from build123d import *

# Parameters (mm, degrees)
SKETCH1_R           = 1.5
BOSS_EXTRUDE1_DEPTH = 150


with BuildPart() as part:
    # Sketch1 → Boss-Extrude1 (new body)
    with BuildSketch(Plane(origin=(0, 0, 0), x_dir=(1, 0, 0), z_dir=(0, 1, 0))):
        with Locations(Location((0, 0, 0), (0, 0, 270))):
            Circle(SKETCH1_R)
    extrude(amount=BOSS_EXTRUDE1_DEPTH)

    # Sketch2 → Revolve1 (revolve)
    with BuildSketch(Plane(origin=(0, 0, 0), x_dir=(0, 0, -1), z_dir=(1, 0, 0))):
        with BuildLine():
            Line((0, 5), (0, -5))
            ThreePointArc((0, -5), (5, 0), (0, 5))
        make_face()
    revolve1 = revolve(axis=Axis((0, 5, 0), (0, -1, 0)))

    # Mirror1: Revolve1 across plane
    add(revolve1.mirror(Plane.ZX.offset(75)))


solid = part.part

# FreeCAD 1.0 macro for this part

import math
import FreeCAD as App
import Part
import Sketcher

V = App.Vector
Q = App.Units.Quantity

doc = App.newDocument("Part")
body = doc.addObject("PartDesign::Body", "Body")

sketch1 = body.newObject("Sketcher::SketchObject", "Sketch")
sketch1.AttachmentSupport = (doc.getObject("XZ_Plane"), [""])
sketch1.MapMode = "FlatFace"
sketch1.addGeometry(Part.Circle(V(0, 0, 0), V(0, 0, 1), 1.5), False)
sketch1.addConstraint([
    Sketcher.Constraint("Coincident", 0, 3, -1, 1),
    Sketcher.Constraint("Diameter", 0, Q("3 mm")),
])
pad1 = body.newObject("PartDesign::Pad", "Pad")
pad1.Profile = sketch1
pad1.Length = 150
pad1.Reversed = True

sketch2 = body.newObject("Sketcher::SketchObject", "Sketch001")
sketch2.AttachmentSupport = (doc.getObject("YZ_Plane"), [""])
sketch2.MapMode = "FlatFace"
sketch2.addGeometry([
    Part.LineSegment(V(5, 0, 0), V(-5, 0, 0)),
    Part.ArcOfCircle(Part.Circle(V(0, 0, 0), V(0, 0, 1), 5), math.radians(180), math.radians(360)),
], False)
sketch2.addConstraint([
    Sketcher.Constraint("Coincident", 0, 1, 1, 2),
    Sketcher.Constraint("Coincident", 1, 1, 0, 2),
    Sketcher.Constraint("Horizontal", 0),
    Sketcher.Constraint("Coincident", 1, 3, -1, 1),
    Sketcher.Constraint("PointOnObject", 0, 1, -1),
    Sketcher.Constraint("Radius", 1, Q("5 mm")),
])
revolution = body.newObject("PartDesign::Revolution", "Revolution")
revolution.Profile = sketch2
revolution.ReferenceAxis = (sketch2, ["H_Axis"])
revolution.Angle = 360
doc.recompute()

datumplane = body.newObject("PartDesign::Plane", "DatumPlane")
datumplane.AttachmentSupport = (doc.getObject("XZ_Plane"), [""])
datumplane.MapMode = "FlatFace"
datumplane.AttachmentOffset = App.Placement(V(0, 0, -75), App.Rotation())
mirrored = body.newObject("PartDesign::Mirrored", "Mirrored")
mirrored.Originals = [revolution]
mirrored.MirrorPlane = (datumplane, [""])
body.Tip = mirrored

doc.recompute()
